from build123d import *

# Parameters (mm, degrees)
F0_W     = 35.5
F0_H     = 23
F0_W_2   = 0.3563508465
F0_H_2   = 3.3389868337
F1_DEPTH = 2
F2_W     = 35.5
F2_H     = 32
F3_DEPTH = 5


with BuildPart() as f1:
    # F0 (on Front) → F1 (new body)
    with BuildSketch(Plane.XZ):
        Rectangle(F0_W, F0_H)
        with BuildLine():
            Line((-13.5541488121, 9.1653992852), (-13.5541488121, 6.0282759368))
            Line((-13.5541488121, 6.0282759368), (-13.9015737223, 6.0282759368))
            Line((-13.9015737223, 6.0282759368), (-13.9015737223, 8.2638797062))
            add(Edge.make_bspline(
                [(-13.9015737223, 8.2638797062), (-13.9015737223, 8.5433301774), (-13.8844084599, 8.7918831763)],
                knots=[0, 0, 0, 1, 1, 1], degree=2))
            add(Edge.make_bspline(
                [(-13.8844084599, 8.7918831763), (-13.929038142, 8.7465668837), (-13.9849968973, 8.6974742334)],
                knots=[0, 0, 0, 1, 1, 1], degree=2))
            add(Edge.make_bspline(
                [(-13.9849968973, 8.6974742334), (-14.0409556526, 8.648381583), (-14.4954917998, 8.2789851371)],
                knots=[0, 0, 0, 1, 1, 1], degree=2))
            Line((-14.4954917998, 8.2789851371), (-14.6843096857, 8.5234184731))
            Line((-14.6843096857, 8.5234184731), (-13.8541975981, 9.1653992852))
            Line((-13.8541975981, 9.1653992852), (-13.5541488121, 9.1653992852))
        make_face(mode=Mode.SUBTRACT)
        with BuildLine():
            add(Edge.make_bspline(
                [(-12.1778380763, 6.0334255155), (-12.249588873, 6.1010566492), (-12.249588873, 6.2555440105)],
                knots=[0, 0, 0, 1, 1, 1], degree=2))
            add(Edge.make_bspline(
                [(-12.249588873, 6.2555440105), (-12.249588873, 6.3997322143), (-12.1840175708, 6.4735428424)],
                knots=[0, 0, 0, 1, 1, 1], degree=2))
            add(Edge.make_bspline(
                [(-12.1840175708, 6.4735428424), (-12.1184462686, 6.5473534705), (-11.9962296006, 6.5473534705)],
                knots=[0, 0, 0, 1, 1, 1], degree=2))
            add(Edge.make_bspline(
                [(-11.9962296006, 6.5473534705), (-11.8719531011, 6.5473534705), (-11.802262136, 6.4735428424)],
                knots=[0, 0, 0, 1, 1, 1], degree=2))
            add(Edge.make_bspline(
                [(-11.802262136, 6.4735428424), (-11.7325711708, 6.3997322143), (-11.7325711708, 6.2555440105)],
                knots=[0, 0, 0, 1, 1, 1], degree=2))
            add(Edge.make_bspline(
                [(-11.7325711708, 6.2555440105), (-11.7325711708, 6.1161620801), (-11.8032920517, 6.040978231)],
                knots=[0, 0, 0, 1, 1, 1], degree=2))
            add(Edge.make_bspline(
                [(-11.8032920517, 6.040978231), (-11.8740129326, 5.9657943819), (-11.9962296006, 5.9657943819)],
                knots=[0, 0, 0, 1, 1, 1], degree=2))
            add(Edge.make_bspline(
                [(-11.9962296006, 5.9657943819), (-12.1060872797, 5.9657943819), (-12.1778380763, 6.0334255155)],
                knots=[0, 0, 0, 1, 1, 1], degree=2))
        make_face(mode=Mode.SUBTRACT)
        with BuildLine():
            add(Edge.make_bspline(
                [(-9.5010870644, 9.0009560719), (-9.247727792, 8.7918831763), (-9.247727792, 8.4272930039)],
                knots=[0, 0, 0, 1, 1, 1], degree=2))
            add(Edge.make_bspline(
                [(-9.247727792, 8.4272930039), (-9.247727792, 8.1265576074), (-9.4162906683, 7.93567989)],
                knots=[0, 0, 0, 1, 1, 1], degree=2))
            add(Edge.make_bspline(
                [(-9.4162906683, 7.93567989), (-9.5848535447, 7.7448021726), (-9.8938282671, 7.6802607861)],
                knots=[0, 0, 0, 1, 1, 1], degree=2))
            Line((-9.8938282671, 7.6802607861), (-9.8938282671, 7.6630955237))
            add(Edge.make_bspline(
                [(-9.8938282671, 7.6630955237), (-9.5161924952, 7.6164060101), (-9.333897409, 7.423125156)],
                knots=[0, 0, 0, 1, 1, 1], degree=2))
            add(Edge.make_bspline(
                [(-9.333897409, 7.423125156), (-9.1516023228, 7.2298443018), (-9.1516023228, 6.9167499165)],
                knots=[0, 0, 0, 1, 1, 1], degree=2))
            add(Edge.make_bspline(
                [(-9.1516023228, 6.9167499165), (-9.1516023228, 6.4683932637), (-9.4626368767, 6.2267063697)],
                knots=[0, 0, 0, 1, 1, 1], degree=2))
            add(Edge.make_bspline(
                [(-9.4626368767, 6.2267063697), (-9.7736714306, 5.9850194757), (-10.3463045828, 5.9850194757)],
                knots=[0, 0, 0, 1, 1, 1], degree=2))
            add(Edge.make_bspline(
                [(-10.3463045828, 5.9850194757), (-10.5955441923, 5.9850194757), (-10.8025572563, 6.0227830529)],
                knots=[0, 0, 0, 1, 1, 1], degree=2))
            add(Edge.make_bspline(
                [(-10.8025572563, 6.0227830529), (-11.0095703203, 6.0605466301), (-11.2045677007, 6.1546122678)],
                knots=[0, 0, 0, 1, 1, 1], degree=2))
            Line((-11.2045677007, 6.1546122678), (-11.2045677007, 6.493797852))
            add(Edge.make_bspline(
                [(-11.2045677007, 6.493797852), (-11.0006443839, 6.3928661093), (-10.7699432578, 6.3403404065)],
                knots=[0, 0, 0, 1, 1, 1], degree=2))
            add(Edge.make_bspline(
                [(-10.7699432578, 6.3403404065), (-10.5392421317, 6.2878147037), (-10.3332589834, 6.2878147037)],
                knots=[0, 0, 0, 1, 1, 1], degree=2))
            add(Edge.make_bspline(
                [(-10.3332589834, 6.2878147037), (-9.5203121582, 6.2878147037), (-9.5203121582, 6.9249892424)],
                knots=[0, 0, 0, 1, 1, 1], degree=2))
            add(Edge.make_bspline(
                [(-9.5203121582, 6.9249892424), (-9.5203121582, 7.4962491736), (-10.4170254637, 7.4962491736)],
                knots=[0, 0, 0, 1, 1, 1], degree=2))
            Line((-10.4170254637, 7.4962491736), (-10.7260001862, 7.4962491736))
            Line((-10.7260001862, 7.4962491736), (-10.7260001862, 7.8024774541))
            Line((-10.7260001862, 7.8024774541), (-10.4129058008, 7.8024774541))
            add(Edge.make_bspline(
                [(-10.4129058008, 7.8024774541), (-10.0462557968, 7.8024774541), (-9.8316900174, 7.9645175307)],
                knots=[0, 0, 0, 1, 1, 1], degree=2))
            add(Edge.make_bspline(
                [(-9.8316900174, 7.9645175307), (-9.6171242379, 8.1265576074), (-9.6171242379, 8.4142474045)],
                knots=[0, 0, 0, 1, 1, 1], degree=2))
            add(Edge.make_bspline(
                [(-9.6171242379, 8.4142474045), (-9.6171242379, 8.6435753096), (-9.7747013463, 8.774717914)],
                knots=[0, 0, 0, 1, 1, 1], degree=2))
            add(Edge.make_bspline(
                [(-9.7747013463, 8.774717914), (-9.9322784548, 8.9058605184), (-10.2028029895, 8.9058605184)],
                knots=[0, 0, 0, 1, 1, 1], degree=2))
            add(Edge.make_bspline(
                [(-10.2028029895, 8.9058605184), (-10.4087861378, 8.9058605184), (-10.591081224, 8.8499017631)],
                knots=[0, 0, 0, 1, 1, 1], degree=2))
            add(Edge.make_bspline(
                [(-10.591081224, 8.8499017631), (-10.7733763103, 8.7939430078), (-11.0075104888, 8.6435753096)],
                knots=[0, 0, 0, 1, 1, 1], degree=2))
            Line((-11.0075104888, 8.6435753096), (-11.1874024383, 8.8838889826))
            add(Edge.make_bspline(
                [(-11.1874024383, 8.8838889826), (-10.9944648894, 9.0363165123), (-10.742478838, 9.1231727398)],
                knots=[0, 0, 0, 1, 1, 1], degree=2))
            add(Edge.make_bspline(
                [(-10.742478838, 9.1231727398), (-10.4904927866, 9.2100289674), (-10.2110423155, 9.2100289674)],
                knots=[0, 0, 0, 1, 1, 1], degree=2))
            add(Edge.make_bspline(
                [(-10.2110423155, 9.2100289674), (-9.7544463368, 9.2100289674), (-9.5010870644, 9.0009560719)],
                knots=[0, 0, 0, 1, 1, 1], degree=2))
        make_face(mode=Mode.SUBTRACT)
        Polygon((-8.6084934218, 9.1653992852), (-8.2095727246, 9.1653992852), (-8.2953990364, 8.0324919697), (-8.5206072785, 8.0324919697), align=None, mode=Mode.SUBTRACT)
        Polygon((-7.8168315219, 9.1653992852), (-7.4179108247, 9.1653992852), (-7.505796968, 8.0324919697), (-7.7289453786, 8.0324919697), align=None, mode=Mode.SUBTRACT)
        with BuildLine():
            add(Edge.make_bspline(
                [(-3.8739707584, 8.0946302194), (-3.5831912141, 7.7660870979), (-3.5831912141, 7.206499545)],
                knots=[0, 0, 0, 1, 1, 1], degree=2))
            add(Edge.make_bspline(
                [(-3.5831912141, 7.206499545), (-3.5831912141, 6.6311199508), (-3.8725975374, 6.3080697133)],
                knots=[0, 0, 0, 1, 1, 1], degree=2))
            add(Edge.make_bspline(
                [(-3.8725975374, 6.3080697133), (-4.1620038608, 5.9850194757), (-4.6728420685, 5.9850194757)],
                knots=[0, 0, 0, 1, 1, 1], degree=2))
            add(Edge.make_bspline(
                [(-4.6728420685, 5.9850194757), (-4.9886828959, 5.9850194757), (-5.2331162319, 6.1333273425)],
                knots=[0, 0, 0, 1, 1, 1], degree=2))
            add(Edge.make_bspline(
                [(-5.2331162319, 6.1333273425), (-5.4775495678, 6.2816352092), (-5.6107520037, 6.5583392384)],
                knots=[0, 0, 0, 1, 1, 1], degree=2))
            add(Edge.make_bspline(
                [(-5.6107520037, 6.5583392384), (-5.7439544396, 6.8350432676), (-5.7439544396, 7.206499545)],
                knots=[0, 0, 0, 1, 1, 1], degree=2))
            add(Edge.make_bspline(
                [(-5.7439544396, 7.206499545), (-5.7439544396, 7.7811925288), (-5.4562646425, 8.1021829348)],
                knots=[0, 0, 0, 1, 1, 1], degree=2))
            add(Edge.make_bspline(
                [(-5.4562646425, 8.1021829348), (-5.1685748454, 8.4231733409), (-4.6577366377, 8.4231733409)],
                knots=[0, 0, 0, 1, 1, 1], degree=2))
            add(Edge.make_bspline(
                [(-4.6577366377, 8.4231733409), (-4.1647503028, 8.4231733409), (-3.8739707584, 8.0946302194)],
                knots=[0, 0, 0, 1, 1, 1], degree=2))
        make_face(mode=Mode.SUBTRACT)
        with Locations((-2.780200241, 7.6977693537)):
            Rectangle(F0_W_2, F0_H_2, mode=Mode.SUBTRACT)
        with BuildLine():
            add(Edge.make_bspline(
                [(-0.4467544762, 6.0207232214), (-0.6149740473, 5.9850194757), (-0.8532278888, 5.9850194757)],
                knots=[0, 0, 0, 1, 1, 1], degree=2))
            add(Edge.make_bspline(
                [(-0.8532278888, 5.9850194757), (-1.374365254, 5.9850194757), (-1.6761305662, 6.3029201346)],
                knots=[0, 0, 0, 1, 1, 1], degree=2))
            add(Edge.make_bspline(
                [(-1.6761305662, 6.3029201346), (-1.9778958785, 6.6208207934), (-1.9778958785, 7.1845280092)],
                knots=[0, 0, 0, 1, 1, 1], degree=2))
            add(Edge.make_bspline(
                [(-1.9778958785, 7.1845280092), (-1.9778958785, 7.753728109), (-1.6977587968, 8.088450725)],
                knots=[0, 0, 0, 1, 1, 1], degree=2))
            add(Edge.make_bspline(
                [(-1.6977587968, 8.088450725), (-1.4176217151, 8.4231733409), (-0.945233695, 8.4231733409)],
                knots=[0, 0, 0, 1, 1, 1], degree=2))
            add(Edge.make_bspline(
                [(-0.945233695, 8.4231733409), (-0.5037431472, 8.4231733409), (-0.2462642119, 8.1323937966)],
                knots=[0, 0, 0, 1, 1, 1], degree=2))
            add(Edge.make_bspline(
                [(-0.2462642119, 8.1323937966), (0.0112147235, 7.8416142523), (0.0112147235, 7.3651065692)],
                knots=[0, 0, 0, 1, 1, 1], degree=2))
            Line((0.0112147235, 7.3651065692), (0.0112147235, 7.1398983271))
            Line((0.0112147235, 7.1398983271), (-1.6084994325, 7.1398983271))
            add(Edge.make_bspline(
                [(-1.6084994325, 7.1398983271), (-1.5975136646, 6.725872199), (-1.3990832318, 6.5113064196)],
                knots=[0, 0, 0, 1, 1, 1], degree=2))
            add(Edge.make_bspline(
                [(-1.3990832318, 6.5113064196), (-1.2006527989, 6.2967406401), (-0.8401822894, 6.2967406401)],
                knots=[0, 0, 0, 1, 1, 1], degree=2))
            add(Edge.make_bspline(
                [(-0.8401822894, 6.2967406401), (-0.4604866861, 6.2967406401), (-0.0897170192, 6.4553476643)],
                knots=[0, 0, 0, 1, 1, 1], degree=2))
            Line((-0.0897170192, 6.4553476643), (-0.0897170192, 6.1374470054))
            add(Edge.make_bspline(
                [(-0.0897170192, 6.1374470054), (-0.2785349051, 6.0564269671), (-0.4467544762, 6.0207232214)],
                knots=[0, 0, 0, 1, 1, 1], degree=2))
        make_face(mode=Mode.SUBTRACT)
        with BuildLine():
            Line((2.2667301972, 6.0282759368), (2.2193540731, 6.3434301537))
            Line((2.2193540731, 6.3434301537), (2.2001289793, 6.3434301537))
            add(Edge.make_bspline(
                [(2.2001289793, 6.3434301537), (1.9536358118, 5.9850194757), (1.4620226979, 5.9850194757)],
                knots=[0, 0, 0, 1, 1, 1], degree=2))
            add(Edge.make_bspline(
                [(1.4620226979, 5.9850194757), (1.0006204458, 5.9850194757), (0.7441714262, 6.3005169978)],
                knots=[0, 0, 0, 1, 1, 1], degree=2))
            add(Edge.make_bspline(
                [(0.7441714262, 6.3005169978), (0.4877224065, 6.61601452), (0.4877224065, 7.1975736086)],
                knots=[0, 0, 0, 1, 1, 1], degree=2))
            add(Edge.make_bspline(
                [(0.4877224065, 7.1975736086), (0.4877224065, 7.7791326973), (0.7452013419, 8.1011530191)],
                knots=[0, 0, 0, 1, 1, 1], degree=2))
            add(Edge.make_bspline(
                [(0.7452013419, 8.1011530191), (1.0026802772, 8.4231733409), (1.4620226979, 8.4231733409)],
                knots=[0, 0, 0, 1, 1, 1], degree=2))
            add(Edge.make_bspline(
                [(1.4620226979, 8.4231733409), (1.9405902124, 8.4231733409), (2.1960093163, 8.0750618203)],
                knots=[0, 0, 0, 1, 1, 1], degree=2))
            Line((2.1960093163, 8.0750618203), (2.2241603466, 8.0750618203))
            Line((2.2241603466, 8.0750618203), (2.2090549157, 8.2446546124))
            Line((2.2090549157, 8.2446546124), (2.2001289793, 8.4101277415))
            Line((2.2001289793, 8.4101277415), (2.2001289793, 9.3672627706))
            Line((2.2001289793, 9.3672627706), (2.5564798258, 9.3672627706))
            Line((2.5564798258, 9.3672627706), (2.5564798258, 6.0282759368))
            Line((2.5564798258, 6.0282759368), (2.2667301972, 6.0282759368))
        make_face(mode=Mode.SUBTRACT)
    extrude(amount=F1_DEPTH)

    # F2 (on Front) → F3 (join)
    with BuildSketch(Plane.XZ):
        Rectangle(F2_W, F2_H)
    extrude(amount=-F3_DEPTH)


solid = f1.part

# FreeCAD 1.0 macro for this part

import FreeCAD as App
import Part
import Sketcher

V = App.Vector
Q = App.Units.Quantity

doc = App.newDocument("Part")
params = doc.addObject("Spreadsheet::Sheet", "Params")
for row, (alias, value) in enumerate([
    ("sketch1_height", "23 mm"),
    ("sketch1_width", "35.5 mm"),
    ("pad1_length", "2 mm"),
    ("sketch2_height", "32 mm"),
    ("sketch2_width", "35.5 mm"),
    ("pad2_length", "5 mm"),
], start=1):
    params.set(f"A{row}", alias)
    params.set(f"B{row}", "=" + value)
    params.setAlias(f"B{row}", alias)

body = doc.addObject("PartDesign::Body", "Body")

sketch1 = body.newObject("Sketcher::SketchObject", "Sketch")
sketch1.AttachmentSupport = (doc.getObject("XZ_Plane"), [""])
sketch1.MapMode = "FlatFace"
sketch1.addGeometry([
    Part.LineSegment(V(-17.75, 11.5, 0), V(-17.75, -11.5, 0)),
    Part.LineSegment(V(-17.75, -11.5, 0), V(17.75, -11.5, 0)),
    Part.LineSegment(V(17.75, -11.5, 0), V(17.75, 11.5, 0)),
    Part.LineSegment(V(17.75, 11.5, 0), V(-17.75, 11.5, 0)),
    Part.BSplineCurve([V(-11.802262, 6.473543, 0), V(-11.732571, 6.399732, 0), V(-11.732571, 6.116162, 0), V(-11.874013, 5.965794, 0), V(-12.106087, 5.965794, 0), V(-12.177838, 6.033426, 0)], [3, 1, 1, 1, 3], [0, 1, 1.966666667, 2.933333334, 3.802247192], False, 2, [1, 1, 1, 1, 1, 1], False),
    Part.BSplineCurve([V(-12.177838, 6.033426, 0), V(-12.249589, 6.101057, 0), V(-12.249589, 6.399732, 0), V(-12.118446, 6.547353, 0), V(-11.871953, 6.547353, 0), V(-11.802262, 6.473543, 0)], [3, 1, 1, 1, 3], [0, 1, 1.933333333, 2.866666666, 3.815730336], False, 2, [1, 1, 1, 1, 1, 1], False),
    Part.LineSegment(V(-13.854198, 9.165399, 0), V(-13.554149, 9.165399, 0)),
    Part.LineSegment(V(-13.554149, 9.165399, 0), V(-13.554149, 6.028276, 0)),
    Part.LineSegment(V(-13.554149, 6.028276, 0), V(-13.901574, 6.028276, 0)),
    Part.LineSegment(V(-13.901574, 6.028276, 0), V(-13.901574, 8.26388, 0)),
    Part.BSplineCurve([V(-13.901574, 8.26388, 0), V(-13.901574, 8.54333, 0), V(-13.884408, 8.791883, 0)], [3, 3], [0, 1], False, 2, [1, 1, 1], False),
    Part.BSplineCurve([V(-13.884408, 8.791883, 0), V(-13.929038, 8.746567, 0), V(-13.984997, 8.697474, 0)], [3, 3], [0, 1], False, 2, [1, 1, 1], False),
    Part.BSplineCurve([V(-13.984997, 8.697474, 0), V(-14.040956, 8.648382, 0), V(-14.495492, 8.278985, 0)], [3, 3], [0, 1], False, 2, [1, 1, 1], False),
    Part.LineSegment(V(-14.495492, 8.278985, 0), V(-14.68431, 8.523418, 0)),
    Part.LineSegment(V(-14.68431, 8.523418, 0), V(-13.854198, 9.165399, 0)),
    Part.BSplineCurve([V(-10.742479, 9.123173, 0), V(-10.490493, 9.210029, 0), V(-9.754446, 9.210029, 0), V(-9.501087, 9.000956, 0)], [3, 1, 3], [0, 1, 2.633906634], False, 2, [1, 1, 1, 1], False),
    Part.BSplineCurve([V(-9.501087, 9.000956, 0), V(-9.247728, 8.791883, 0), V(-9.247728, 8.126558, 0), V(-9.416291, 7.93568, 0)], [3, 1, 3], [0, 1, 1.824858757], False, 2, [1, 1, 1, 1], False),
    Part.BSplineCurve([V(-9.416291, 7.93568, 0), V(-9.584854, 7.744802, 0), V(-9.893828, 7.680261, 0)], [3, 3], [0, 1], False, 2, [1, 1, 1], False),
    Part.LineSegment(V(-9.893828, 7.680261, 0), V(-9.893828, 7.663096, 0)),
    Part.BSplineCurve([V(-9.893828, 7.663096, 0), V(-9.516192, 7.616406, 0), V(-9.333897, 7.423125, 0)], [3, 3], [0, 1], False, 2, [1, 1, 1], False),
    Part.BSplineCurve([V(-9.333897, 7.423125, 0), V(-9.151602, 7.229844, 0), V(-9.151602, 6.468393, 0), V(-9.773671, 5.985019, 0), V(-10.595544, 5.985019, 0), V(-11.00957, 6.060547, 0), V(-11.204568, 6.154612, 0)], [3, 1, 1, 1, 1, 3], [0, 1, 2.432017544, 3.864035089, 4.487323301, 5.110611513], False, 2, [1, 1, 1, 1, 1, 1, 1], False),
    Part.LineSegment(V(-11.204568, 6.154612, 0), V(-11.204568, 6.493798, 0)),
    Part.BSplineCurve([V(-11.204568, 6.493798, 0), V(-11.000644, 6.392866, 0), V(-10.539242, 6.287815, 0), V(-9.520312, 6.287815, 0), V(-9.520312, 7.496249, 0), V(-10.417025, 7.496249, 0)], [3, 1, 1, 1, 3], [0, 1, 2, 5.946666666, 9.48505747], False, 2, [1, 1, 1, 1, 1, 1], False),
    Part.LineSegment(V(-10.417025, 7.496249, 0), V(-10.726, 7.496249, 0)),
    Part.LineSegment(V(-10.726, 7.496249, 0), V(-10.726, 7.802477, 0)),
    Part.LineSegment(V(-10.726, 7.802477, 0), V(-10.412906, 7.802477, 0)),
    Part.BSplineCurve([V(-10.412906, 7.802477, 0), V(-10.046256, 7.802477, 0), V(-9.83169, 7.964518, 0)], [3, 3], [0, 1], False, 2, [1, 1, 1], False),
    Part.BSplineCurve([V(-9.83169, 7.964518, 0), V(-9.617124, 8.126558, 0), V(-9.617124, 8.643575, 0), V(-9.774701, 8.774718, 0)], [3, 1, 3], [0, 1, 1.797136038], False, 2, [1, 1, 1, 1], False),
    Part.BSplineCurve([V(-9.774701, 8.774718, 0), V(-9.932278, 8.905861, 0), V(-10.408786, 8.905861, 0), V(-10.591081, 8.849902, 0)], [3, 1, 3], [0, 1, 1.76142132], False, 2, [1, 1, 1, 1], False),
    Part.BSplineCurve([V(-10.591081, 8.849902, 0), V(-10.773376, 8.793943, 0), V(-11.00751, 8.643575, 0)], [3, 3], [0, 1], False, 2, [1, 1, 1], False),
    Part.LineSegment(V(-11.00751, 8.643575, 0), V(-11.187402, 8.883889, 0)),
    Part.BSplineCurve([V(-11.187402, 8.883889, 0), V(-10.994465, 9.036317, 0), V(-10.742479, 9.123173, 0)], [3, 3], [0, 1], False, 2, [1, 1, 1], False),
    Part.BSplineCurve([V(-5.456265, 8.102183, 0), V(-5.168575, 8.423173, 0), V(-4.16475, 8.423173, 0), V(-3.873971, 8.09463, 0)], [3, 1, 3], [0, 1, 1.965053764], False, 2, [1, 1, 1, 1], False),
    Part.BSplineCurve([V(-3.873971, 8.09463, 0), V(-3.583191, 7.766087, 0), V(-3.583191, 6.63112, 0), V(-3.872598, 6.30807, 0)], [3, 1, 3], [0, 1, 2.028220859], False, 2, [1, 1, 1, 1], False),
    Part.BSplineCurve([V(-3.872598, 6.30807, 0), V(-4.162004, 5.985019, 0), V(-4.988683, 5.985019, 0), V(-5.233116, 6.133327, 0)], [3, 1, 3], [0, 1, 1.61827957], False, 2, [1, 1, 1, 1], False),
    Part.BSplineCurve([V(-5.233116, 6.133327, 0), V(-5.47755, 6.281635, 0), V(-5.743954, 6.835043, 0), V(-5.743954, 7.781193, 0), V(-5.456265, 8.102183, 0)], [3, 1, 1, 3], [0, 1, 2, 3.547134936], False, 2, [1, 1, 1, 1, 1], False),
    Part.BSplineCurve([V(-0.089717, 6.137447, 0), V(-0.278535, 6.056427, 0), V(-0.614974, 5.985019, 0), V(-1.374365, 5.985019, 0), V(-1.676131, 6.30292, 0)], [3, 1, 1, 3], [0, 1, 2, 4.187319885], False, 2, [1, 1, 1, 1, 1], False),
    Part.BSplineCurve([V(-1.676131, 6.30292, 0), V(-1.977896, 6.620821, 0), V(-1.977896, 7.753728, 0), V(-1.697759, 8.088451, 0)], [3, 1, 3], [0, 1, 2.009744214], False, 2, [1, 1, 1, 1], False),
    Part.BSplineCurve([V(-1.697759, 8.088451, 0), V(-1.417622, 8.423173, 0), V(-0.503743, 8.423173, 0), V(-0.246264, 8.132394, 0)], [3, 1, 3], [0, 1, 1.934593023], False, 2, [1, 1, 1, 1], False),
    Part.BSplineCurve([V(-0.246264, 8.132394, 0), V(0.011215, 7.841614, 0), V(0.011215, 7.365107, 0)], [3, 3], [0, 1], False, 2, [1, 1, 1], False),
    Part.LineSegment(V(0.011215, 7.365107, 0), V(0.011215, 7.139898, 0)),
    Part.LineSegment(V(0.011215, 7.139898, 0), V(-1.608499, 7.139898, 0)),
    Part.BSplineCurve([V(-1.608499, 7.139898, 0), V(-1.597514, 6.725872, 0), V(-1.399083, 6.511306, 0)], [3, 3], [0, 1], False, 2, [1, 1, 1], False),
    Part.BSplineCurve([V(-1.399083, 6.511306, 0), V(-1.200653, 6.296741, 0), V(-0.460487, 6.296741, 0), V(-0.089717, 6.455348, 0)], [3, 1, 3], [0, 1, 2.053333333], False, 2, [1, 1, 1, 1], False),
    Part.LineSegment(V(-0.089717, 6.455348, 0), V(-0.089717, 6.137447, 0)),
    Part.LineSegment(V(-8.520607, 8.032492, 0), V(-8.608493, 9.165399, 0)),
    Part.LineSegment(V(-8.608493, 9.165399, 0), V(-8.209573, 9.165399, 0)),
    Part.LineSegment(V(-8.209573, 9.165399, 0), V(-8.295399, 8.032492, 0)),
    Part.LineSegment(V(-8.295399, 8.032492, 0), V(-8.520607, 8.032492, 0)),
    Part.LineSegment(V(-7.728945, 8.032492, 0), V(-7.816832, 9.165399, 0)),
    Part.LineSegment(V(-7.816832, 9.165399, 0), V(-7.417911, 9.165399, 0)),
    Part.LineSegment(V(-7.417911, 9.165399, 0), V(-7.505797, 8.032492, 0)),
    Part.LineSegment(V(-7.505797, 8.032492, 0), V(-7.728945, 8.032492, 0)),
    Part.LineSegment(V(-2.602025, 6.028276, 0), V(-2.958376, 6.028276, 0)),
    Part.LineSegment(V(-2.958376, 6.028276, 0), V(-2.958376, 9.367263, 0)),
    Part.LineSegment(V(-2.958376, 9.367263, 0), V(-2.602025, 9.367263, 0)),
    Part.LineSegment(V(-2.602025, 9.367263, 0), V(-2.602025, 6.028276, 0)),
    Part.LineSegment(V(2.55648, 6.028276, 0), V(2.26673, 6.028276, 0)),
    Part.LineSegment(V(2.26673, 6.028276, 0), V(2.219354, 6.34343, 0)),
    Part.LineSegment(V(2.219354, 6.34343, 0), V(2.200129, 6.34343, 0)),
    Part.BSplineCurve([V(2.200129, 6.34343, 0), V(1.953636, 5.985019, 0), V(1.00062, 5.985019, 0), V(0.744171, 6.300517, 0)], [3, 1, 3], [0, 1, 1.938547486], False, 2, [1, 1, 1, 1], False),
    Part.BSplineCurve([V(0.744171, 6.300517, 0), V(0.487722, 6.616015, 0), V(0.487722, 7.779133, 0), V(0.745201, 8.101153, 0)], [3, 1, 3], [0, 1, 2], False, 2, [1, 1, 1, 1], False),
    Part.BSplineCurve([V(0.745201, 8.101153, 0), V(1.00268, 8.423173, 0), V(1.94059, 8.423173, 0), V(2.196009, 8.075062, 0)], [3, 1, 3], [0, 1, 2.041853513], False, 2, [1, 1, 1, 1], False),
    Part.LineSegment(V(2.196009, 8.075062, 0), V(2.22416, 8.075062, 0)),
    Part.LineSegment(V(2.22416, 8.075062, 0), V(2.209055, 8.244655, 0)),
    Part.LineSegment(V(2.209055, 8.244655, 0), V(2.200129, 8.410128, 0)),
    Part.LineSegment(V(2.200129, 8.410128, 0), V(2.200129, 9.367263, 0)),
    Part.LineSegment(V(2.200129, 9.367263, 0), V(2.55648, 9.367263, 0)),
    Part.LineSegment(V(2.55648, 9.367263, 0), V(2.55648, 6.028276, 0)),
], False)
sketch1.addConstraint([
    Sketcher.Constraint("Block", 4),
    Sketcher.Constraint("Block", 5),
    Sketcher.Constraint("Block", 10),
    Sketcher.Constraint("Block", 11),
    Sketcher.Constraint("Block", 12),
    Sketcher.Constraint("Block", 15),
    Sketcher.Constraint("Block", 16),
    Sketcher.Constraint("Block", 17),
    Sketcher.Constraint("Block", 19),
    Sketcher.Constraint("Block", 20),
    Sketcher.Constraint("Block", 22),
    Sketcher.Constraint("Block", 26),
    Sketcher.Constraint("Block", 27),
    Sketcher.Constraint("Block", 28),
    Sketcher.Constraint("Block", 29),
    Sketcher.Constraint("Block", 31),
    Sketcher.Constraint("Block", 32),
    Sketcher.Constraint("Block", 33),
    Sketcher.Constraint("Block", 34),
    Sketcher.Constraint("Block", 35),
    Sketcher.Constraint("Block", 36),
    Sketcher.Constraint("Block", 37),
    Sketcher.Constraint("Block", 38),
    Sketcher.Constraint("Block", 39),
    Sketcher.Constraint("Block", 42),
    Sketcher.Constraint("Block", 43),
    Sketcher.Constraint("Block", 60),
    Sketcher.Constraint("Block", 61),
    Sketcher.Constraint("Block", 62),
    Sketcher.Constraint("Coincident", 0, 2, 1, 1),
    Sketcher.Constraint("Coincident", 1, 2, 2, 1),
    Sketcher.Constraint("Coincident", 2, 2, 3, 1),
    Sketcher.Constraint("Coincident", 3, 2, 0, 1),
    Sketcher.Constraint("Coincident", 6, 2, 7, 1),
    Sketcher.Constraint("Coincident", 7, 2, 8, 1),
    Sketcher.Constraint("Coincident", 8, 2, 9, 1),
    Sketcher.Constraint("Coincident", 9, 2, 10, 1),
    Sketcher.Constraint("Coincident", 12, 2, 13, 1),
    Sketcher.Constraint("Coincident", 13, 2, 14, 1),
    Sketcher.Constraint("Coincident", 14, 2, 6, 1),
    Sketcher.Constraint("Coincident", 17, 2, 18, 1),
    Sketcher.Constraint("Coincident", 18, 2, 19, 1),
    Sketcher.Constraint("Coincident", 20, 2, 21, 1),
    Sketcher.Constraint("Coincident", 21, 2, 22, 1),
    Sketcher.Constraint("Coincident", 22, 2, 23, 1),
    Sketcher.Constraint("Coincident", 23, 2, 24, 1),
    Sketcher.Constraint("Coincident", 24, 2, 25, 1),
    Sketcher.Constraint("Coincident", 25, 2, 26, 1),
    Sketcher.Constraint("Coincident", 29, 2, 30, 1),
    Sketcher.Constraint("Coincident", 30, 2, 31, 1),
    Sketcher.Constraint("Coincident", 39, 2, 40, 1),
    Sketcher.Constraint("Coincident", 40, 2, 41, 1),
    Sketcher.Constraint("Coincident", 41, 2, 42, 1),
    Sketcher.Constraint("Coincident", 43, 2, 44, 1),
    Sketcher.Constraint("Coincident", 44, 2, 36, 1),
    Sketcher.Constraint("Coincident", 45, 2, 46, 1),
    Sketcher.Constraint("Coincident", 46, 2, 47, 1),
    Sketcher.Constraint("Coincident", 47, 2, 48, 1),
    Sketcher.Constraint("Coincident", 48, 2, 45, 1),
    Sketcher.Constraint("Coincident", 49, 2, 50, 1),
    Sketcher.Constraint("Coincident", 50, 2, 51, 1),
    Sketcher.Constraint("Coincident", 51, 2, 52, 1),
    Sketcher.Constraint("Coincident", 52, 2, 49, 1),
    Sketcher.Constraint("Coincident", 53, 2, 54, 1),
    Sketcher.Constraint("Coincident", 54, 2, 55, 1),
    Sketcher.Constraint("Coincident", 55, 2, 56, 1),
    Sketcher.Constraint("Coincident", 56, 2, 53, 1),
    Sketcher.Constraint("Coincident", 57, 2, 58, 1),
    Sketcher.Constraint("Coincident", 58, 2, 59, 1),
    Sketcher.Constraint("Coincident", 59, 2, 60, 1),
    Sketcher.Constraint("Coincident", 62, 2, 63, 1),
    Sketcher.Constraint("Coincident", 63, 2, 64, 1),
    Sketcher.Constraint("Coincident", 64, 2, 65, 1),
    Sketcher.Constraint("Coincident", 65, 2, 66, 1),
    Sketcher.Constraint("Coincident", 66, 2, 67, 1),
    Sketcher.Constraint("Coincident", 67, 2, 68, 1),
    Sketcher.Constraint("Coincident", 68, 2, 57, 1),
    Sketcher.Constraint("Vertical", 0),
    Sketcher.Constraint("Horizontal", 1),
    Sketcher.Constraint("Vertical", 2),
    Sketcher.Constraint("Horizontal", 3),
    Sketcher.Constraint("Horizontal", 6),
    Sketcher.Constraint("Vertical", 7),
    Sketcher.Constraint("Horizontal", 8),
    Sketcher.Constraint("Vertical", 9),
    Sketcher.Constraint("Horizontal", 23),
    Sketcher.Constraint("Vertical", 24),
    Sketcher.Constraint("Horizontal", 25),
    Sketcher.Constraint("Vertical", 40),
    Sketcher.Constraint("Horizontal", 41),
    Sketcher.Constraint("Horizontal", 46),
    Sketcher.Constraint("Horizontal", 48),
    Sketcher.Constraint("Horizontal", 50),
    Sketcher.Constraint("Horizontal", 52),
    Sketcher.Constraint("Horizontal", 53),
    Sketcher.Constraint("Vertical", 54),
    Sketcher.Constraint("Horizontal", 55),
    Sketcher.Constraint("Vertical", 56),
    Sketcher.Constraint("Horizontal", 57),
    Sketcher.Constraint("Horizontal", 59),
    Sketcher.Constraint("Horizontal", 63),
    Sketcher.Constraint("Vertical", 66),
    Sketcher.Constraint("Horizontal", 67),
    Sketcher.Constraint("Vertical", 68),
    Sketcher.Constraint("Symmetric", 0, 2, 2, 2, -1, 1),
    Sketcher.Constraint("Parallel", 45, 49),
    Sketcher.Constraint("Horizontal", 14, 2, 45, 2),
    Sketcher.Constraint("Horizontal", 46, 2, 49, 2),
    Sketcher.Constraint("Horizontal", 48, 2, 51, 2),
    Sketcher.Constraint("Horizontal", 8, 2, 53, 2),
    Sketcher.Constraint("Horizontal", 56, 2, 57, 2),
    Sketcher.Constraint("Horizontal", 55, 2, 66, 2),
    Sketcher.Constraint("Vertical", 59, 2, 65, 2),
    Sketcher.Constraint("Equal", 46, 50),
    Sketcher.Constraint("Equal", 55, 67),
    Sketcher.Constraint("Equal", 48, 40),
    Sketcher.Constraint("Equal", 49, 51),
    Sketcher.Constraint("DistanceY", 0, 2, 0, 1, Q("23 mm")),
    Sketcher.Constraint("DistanceX", 1, 1, 1, 2, Q("35.5 mm")),
    Sketcher.Constraint("DistanceX", 23, 2, -1, 1, Q("10.726 mm")),
    Sketcher.Constraint("DistanceX", 6, 1, 6, 2, Q("0.300049 mm")),
    Sketcher.Constraint("DistanceX", 46, 1, 46, 2, Q("0.398921 mm")),
    Sketcher.Constraint("DistanceX", 52, 2, 52, 1, Q("0.223148 mm")),
    Sketcher.Constraint("DistanceX", 53, 2, 53, 1, Q("0.356351 mm")),
    Sketcher.Constraint("DistanceX", 57, 2, 57, 1, Q("0.28975 mm")),
    Sketcher.Constraint("DistanceX", 63, 1, 63, 2, Q("0.028151 mm")),
    Sketcher.Constraint("DistanceY", -1, 1, 6, 2, Q("9.165399 mm")),
    Sketcher.Constraint("DistanceX", 47, 2, -1, 1, Q("8.295399 mm")),
    Sketcher.Constraint("DistanceX", 64, 2, 58, 2, Q("0.010299 mm")),
    Sketcher.Constraint("DistanceY", 63, 2, 66, 2, Q("1.292201 mm")),
    Sketcher.Constraint("Distance", 13, Q("0.308869 mm")),
    Sketcher.Constraint("Distance", 45, Q("1.136311 mm")),
    Sketcher.Constraint("DistanceX", 8, 2, 8, 1, Q("0.347425 mm")),
    Sketcher.Constraint("DistanceX", 59, 2, 59, 1, Q("0.019225 mm")),
    Sketcher.Constraint("DistanceY", 7, 2, 7, 1, Q("3.137123 mm")),
    Sketcher.Constraint("DistanceY", 66, 1, 66, 2, Q("0.957135 mm")),
    Sketcher.Constraint("DistanceX", 13, 2, -1, 1, Q("14.68431 mm")),
    Sketcher.Constraint("DistanceX", 49, 2, -1, 1, Q("7.816832 mm")),
    Sketcher.Constraint("DistanceX", 53, 2, 44, 2, Q("2.868659 mm")),
    Sketcher.Constraint("DistanceY", 57, 2, 64, 2, Q("2.216379 mm")),
])
sketch1.setExpression("Constraints[117]", "Params.sketch1_height")
sketch1.setExpression("Constraints[118]", "Params.sketch1_width")
pad1 = body.newObject("PartDesign::Pad", "Pad")
pad1.Profile = sketch1
pad1.setExpression("Length", "Params.pad1_length")

sketch2 = body.newObject("Sketcher::SketchObject", "Sketch001")
sketch2.AttachmentSupport = (doc.getObject("XZ_Plane"), [""])
sketch2.MapMode = "FlatFace"
sketch2.addGeometry([
    Part.LineSegment(V(-18, 16, 0), V(-18, -16, 0)),
    Part.LineSegment(V(-18, -16, 0), V(18, -16, 0)),
    Part.LineSegment(V(18, -16, 0), V(18, 16, 0)),
    Part.LineSegment(V(18, 16, 0), V(-18, 16, 0)),
], False)
sketch2.addConstraint([
    Sketcher.Constraint("Coincident", 0, 2, 1, 1),
    Sketcher.Constraint("Coincident", 1, 2, 2, 1),
    Sketcher.Constraint("Coincident", 2, 2, 3, 1),
    Sketcher.Constraint("Coincident", 3, 2, 0, 1),
    Sketcher.Constraint("Vertical", 0),
    Sketcher.Constraint("Horizontal", 1),
    Sketcher.Constraint("Vertical", 2),
    Sketcher.Constraint("Horizontal", 3),
    Sketcher.Constraint("Symmetric", 0, 2, 2, 2, -1, 1),
    Sketcher.Constraint("DistanceY", 0, 2, 0, 1, Q("32 mm")),
    Sketcher.Constraint("DistanceX", 1, 1, 1, 2, Q("35.5 mm")),
])
sketch2.setExpression("Constraints[9]", "Params.sketch2_height")
sketch2.setExpression("Constraints[10]", "Params.sketch2_width")
pad2 = body.newObject("PartDesign::Pad", "Pad001")
pad2.Profile = sketch2
pad2.setExpression("Length", "Params.pad2_length")
pad2.Reversed = True

doc.recompute()
